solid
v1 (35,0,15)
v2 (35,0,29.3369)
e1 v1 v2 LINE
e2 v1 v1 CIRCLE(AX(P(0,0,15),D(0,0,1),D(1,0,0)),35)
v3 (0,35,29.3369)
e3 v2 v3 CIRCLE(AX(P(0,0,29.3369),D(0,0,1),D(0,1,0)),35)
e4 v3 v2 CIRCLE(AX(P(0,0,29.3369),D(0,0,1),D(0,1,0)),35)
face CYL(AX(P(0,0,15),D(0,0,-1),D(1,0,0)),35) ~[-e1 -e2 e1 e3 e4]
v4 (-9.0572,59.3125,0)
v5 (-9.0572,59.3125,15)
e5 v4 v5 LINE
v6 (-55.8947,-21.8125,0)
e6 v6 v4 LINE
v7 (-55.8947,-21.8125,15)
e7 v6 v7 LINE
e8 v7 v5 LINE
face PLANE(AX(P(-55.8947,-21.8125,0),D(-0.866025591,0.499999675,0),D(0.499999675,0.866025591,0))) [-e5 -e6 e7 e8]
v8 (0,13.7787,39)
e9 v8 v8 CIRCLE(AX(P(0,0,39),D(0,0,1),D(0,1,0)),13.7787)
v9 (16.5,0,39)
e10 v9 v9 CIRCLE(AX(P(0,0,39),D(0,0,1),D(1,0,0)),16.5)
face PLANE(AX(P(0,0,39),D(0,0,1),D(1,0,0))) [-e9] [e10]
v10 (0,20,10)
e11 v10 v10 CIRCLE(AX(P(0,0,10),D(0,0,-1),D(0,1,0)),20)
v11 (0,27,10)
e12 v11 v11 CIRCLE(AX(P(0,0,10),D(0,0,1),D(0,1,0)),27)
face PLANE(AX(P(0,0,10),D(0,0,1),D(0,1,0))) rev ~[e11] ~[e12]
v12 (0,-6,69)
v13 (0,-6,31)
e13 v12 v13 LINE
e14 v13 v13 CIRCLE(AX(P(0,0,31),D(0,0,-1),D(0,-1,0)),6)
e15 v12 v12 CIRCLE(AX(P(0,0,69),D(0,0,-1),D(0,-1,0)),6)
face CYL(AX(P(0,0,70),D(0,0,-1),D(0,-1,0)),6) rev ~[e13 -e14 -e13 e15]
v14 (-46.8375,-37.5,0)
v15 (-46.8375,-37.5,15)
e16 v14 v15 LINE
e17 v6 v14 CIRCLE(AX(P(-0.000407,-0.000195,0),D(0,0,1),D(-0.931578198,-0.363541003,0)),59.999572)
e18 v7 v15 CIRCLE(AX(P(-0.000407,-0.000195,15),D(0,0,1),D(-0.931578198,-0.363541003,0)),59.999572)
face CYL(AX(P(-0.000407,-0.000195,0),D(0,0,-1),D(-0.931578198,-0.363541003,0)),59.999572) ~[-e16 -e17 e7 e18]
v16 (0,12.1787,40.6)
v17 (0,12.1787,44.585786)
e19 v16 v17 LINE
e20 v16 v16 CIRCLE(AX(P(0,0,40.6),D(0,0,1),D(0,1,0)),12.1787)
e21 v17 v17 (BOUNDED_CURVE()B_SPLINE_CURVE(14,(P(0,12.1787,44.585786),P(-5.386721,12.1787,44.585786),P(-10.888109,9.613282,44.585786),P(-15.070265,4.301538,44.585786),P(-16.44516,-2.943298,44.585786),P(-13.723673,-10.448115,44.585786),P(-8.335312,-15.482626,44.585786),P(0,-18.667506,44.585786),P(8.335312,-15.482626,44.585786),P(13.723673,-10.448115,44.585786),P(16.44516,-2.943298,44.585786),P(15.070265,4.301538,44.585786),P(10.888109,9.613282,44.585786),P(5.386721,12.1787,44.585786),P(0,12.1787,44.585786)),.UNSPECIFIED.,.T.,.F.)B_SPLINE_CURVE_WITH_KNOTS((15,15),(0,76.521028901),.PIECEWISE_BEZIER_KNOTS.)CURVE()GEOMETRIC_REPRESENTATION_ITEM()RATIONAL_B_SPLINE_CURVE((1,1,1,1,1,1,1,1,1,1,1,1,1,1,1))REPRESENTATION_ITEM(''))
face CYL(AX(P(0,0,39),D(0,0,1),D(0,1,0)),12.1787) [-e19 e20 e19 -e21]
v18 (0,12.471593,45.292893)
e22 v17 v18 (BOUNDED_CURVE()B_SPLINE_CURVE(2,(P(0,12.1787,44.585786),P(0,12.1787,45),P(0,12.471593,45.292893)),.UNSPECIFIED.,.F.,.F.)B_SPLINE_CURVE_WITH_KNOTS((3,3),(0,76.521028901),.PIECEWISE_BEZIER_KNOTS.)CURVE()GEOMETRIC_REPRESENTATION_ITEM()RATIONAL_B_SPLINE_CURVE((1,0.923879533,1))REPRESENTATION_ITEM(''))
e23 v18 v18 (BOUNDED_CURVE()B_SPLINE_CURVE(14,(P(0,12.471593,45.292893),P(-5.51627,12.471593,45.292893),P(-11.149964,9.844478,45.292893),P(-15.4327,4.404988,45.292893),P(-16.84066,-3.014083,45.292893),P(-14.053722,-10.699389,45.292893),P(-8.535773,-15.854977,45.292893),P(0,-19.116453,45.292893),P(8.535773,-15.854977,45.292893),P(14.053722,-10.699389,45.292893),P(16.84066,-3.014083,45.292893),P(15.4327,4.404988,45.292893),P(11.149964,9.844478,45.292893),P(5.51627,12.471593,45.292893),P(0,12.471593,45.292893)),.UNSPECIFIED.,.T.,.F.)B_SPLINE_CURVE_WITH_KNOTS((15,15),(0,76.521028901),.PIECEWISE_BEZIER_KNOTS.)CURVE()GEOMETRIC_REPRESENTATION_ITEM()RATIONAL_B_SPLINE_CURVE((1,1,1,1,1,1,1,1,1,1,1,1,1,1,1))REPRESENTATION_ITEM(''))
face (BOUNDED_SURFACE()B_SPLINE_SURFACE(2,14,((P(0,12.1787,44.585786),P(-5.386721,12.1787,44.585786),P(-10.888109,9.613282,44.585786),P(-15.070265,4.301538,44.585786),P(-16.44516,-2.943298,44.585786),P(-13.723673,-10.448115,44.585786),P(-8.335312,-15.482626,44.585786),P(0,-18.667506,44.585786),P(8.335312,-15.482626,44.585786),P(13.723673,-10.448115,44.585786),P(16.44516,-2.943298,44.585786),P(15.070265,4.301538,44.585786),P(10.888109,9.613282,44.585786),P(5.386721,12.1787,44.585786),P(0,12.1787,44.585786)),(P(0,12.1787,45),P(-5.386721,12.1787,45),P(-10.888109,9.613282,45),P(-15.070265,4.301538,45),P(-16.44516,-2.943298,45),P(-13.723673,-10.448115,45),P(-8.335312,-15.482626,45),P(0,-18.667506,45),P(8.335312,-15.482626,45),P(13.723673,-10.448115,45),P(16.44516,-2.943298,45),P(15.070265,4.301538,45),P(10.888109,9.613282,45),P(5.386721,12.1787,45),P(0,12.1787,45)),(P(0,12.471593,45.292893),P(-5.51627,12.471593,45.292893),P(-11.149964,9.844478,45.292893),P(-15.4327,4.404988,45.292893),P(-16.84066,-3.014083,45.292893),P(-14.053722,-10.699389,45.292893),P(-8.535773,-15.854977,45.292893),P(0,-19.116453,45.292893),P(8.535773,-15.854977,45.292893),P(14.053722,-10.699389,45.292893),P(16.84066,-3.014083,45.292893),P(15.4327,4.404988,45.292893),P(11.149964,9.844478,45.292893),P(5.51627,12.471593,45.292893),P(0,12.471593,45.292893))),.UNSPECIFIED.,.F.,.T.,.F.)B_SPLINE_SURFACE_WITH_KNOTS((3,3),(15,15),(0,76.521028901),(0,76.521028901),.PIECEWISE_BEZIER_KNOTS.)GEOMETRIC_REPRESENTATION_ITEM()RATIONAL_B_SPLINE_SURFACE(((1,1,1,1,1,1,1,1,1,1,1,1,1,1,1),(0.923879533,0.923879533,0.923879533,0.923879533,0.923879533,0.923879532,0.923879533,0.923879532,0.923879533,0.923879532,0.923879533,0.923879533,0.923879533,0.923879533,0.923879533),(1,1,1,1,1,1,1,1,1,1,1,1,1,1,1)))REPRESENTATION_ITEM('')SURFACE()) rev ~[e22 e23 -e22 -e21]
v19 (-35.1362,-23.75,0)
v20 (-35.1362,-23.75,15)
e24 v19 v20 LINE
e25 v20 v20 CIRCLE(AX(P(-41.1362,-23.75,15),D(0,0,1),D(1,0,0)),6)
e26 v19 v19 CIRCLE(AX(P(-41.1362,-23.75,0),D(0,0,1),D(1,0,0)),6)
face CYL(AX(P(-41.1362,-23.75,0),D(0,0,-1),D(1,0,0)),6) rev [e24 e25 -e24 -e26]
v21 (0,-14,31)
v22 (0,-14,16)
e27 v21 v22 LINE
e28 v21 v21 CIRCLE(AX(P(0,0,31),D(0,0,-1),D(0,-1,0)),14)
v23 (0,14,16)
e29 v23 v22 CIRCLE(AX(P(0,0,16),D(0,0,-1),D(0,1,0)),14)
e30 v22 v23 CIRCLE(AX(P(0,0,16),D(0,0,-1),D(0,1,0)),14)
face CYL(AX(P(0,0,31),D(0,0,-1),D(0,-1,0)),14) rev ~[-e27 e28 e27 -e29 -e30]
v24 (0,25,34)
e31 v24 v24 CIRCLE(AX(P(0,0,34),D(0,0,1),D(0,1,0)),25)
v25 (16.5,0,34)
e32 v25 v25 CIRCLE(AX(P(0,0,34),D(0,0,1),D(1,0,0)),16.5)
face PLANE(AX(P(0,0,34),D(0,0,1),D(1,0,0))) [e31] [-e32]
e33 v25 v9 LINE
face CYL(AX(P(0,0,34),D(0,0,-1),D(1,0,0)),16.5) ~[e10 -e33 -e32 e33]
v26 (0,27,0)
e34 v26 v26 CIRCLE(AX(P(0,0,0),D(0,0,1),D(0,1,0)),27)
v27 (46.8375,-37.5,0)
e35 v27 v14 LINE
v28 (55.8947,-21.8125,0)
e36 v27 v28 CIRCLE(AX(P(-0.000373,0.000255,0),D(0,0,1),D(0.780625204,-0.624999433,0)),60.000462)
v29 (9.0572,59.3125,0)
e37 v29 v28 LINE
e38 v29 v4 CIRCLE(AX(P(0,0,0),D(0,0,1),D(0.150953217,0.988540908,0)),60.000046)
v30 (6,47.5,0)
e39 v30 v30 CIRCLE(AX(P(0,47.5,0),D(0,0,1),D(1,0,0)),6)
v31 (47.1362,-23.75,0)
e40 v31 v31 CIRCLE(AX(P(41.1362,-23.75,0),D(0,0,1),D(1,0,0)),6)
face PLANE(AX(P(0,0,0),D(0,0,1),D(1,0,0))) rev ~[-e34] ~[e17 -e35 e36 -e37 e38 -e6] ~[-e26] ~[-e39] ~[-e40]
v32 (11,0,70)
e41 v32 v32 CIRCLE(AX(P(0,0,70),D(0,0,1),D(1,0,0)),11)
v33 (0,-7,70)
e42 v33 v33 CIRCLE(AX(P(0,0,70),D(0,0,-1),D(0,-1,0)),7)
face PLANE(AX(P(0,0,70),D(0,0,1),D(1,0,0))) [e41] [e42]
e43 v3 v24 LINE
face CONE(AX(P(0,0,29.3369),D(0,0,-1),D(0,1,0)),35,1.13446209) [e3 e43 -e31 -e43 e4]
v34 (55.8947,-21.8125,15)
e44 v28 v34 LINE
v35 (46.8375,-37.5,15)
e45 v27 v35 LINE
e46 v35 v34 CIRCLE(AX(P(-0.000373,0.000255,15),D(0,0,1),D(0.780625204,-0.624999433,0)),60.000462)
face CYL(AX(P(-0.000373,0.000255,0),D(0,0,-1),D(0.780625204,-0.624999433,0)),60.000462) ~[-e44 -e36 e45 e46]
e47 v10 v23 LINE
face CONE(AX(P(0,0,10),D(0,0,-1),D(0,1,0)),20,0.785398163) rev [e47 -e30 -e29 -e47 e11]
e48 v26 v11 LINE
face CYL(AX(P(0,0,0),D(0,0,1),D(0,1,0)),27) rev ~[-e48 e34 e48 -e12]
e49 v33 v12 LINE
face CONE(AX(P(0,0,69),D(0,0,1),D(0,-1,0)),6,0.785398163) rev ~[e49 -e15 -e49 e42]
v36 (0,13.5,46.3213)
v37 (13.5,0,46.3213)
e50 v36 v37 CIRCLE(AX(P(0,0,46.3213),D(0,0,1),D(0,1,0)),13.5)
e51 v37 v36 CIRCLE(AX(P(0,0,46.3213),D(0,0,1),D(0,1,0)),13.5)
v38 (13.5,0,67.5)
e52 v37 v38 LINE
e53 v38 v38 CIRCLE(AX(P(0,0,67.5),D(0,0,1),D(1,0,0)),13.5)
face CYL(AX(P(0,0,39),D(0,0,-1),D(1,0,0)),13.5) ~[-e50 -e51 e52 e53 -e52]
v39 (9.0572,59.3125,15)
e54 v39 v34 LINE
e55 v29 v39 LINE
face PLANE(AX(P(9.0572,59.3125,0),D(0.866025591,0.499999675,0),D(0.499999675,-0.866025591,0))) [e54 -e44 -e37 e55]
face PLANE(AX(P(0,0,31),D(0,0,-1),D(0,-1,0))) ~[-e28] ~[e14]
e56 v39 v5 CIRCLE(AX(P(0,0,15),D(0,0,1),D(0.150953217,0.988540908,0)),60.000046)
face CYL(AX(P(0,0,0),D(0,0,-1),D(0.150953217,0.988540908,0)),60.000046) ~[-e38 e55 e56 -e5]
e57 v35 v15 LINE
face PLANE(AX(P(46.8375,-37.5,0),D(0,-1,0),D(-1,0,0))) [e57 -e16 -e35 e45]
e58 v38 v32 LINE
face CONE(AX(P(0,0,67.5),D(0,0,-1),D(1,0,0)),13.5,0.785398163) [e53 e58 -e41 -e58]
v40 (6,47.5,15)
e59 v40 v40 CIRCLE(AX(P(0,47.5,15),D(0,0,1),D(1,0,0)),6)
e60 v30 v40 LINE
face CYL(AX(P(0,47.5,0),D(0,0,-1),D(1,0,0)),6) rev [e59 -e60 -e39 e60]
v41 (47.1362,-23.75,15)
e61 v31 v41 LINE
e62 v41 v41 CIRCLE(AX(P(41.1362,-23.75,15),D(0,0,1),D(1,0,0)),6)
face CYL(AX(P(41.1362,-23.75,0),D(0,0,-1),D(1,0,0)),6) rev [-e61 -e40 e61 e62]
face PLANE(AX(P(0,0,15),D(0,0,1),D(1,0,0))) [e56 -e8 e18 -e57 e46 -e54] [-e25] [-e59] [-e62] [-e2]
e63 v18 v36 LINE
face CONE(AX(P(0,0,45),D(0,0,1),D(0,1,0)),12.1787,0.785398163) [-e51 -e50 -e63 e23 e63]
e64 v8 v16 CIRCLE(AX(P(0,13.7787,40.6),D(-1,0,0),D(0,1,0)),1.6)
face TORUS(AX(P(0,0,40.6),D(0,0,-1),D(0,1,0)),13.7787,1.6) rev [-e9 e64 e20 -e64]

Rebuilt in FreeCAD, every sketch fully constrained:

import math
import FreeCAD as App
import Part
import Sketcher
Q = App.Units.Quantity


def edges_at(feature, points):
    """Names of the edges that pass closest to the given points."""
    edges = feature.Shape.Edges
    near = lambda p: min(range(len(edges)), key=lambda i: edges[i].distToShape(Part.Vertex(*p))[0])
    return sorted({f"Edge{near(p) + 1}" for p in points})

doc = App.newDocument("Part")
body = doc.addObject("PartDesign::Body", "Body")

sketch1 = doc.addObject("Sketcher::SketchObject", "Sketch")
body.addObject(sketch1)
sketch1.AttachmentSupport = (doc.XY_Plane, [""])
sketch1.MapMode = "FlatFace"
sketch1.addGeometry(Part.LineSegment(App.Vector(55.8947, -21.8125, 0), App.Vector(9.0572, 59.3125, 0)), False)
sketch1.addGeometry(Part.ArcOfCircle(Part.Circle(App.Vector(0, 0, 0), App.Vector(0, 0, 1), 60.000046), math.radians(81.317829), math.radians(98.682171)), False)
sketch1.addGeometry(Part.LineSegment(App.Vector(-9.0572, 59.3125, 0), App.Vector(-55.8947, -21.8125, 0)), False)
sketch1.addGeometry(Part.ArcOfCircle(Part.Circle(App.Vector(0, 0, 0), App.Vector(0, 0, 1), 60.000012), math.radians(-158.682146), math.radians(-141.317822)), False)
sketch1.addGeometry(Part.LineSegment(App.Vector(-46.8375, -37.5, 0), App.Vector(46.8375, -37.5, 0)), False)
sketch1.addGeometry(Part.ArcOfCircle(Part.Circle(App.Vector(0, 0, 0), App.Vector(0, 0, 1), 60.000046), math.radians(-38.682178), math.radians(-21.317854)), False)
sketch1.addGeometry(Part.Circle(App.Vector(-41.1362, -23.75, 0), App.Vector(0, 0, 1), 6), False)
sketch1.addGeometry(Part.Circle(App.Vector(41.1362, -23.75, 0), App.Vector(0, 0, 1), 6), False)
sketch1.addGeometry(Part.Circle(App.Vector(0, 47.5, 0), App.Vector(0, 0, 1), 6), False)
sketch1.addConstraint(Sketcher.Constraint("Coincident", 0, 2, 1, 1))
sketch1.addConstraint(Sketcher.Constraint("Coincident", 1, 2, 2, 1))
sketch1.addConstraint(Sketcher.Constraint("Coincident", 2, 2, 3, 1))
sketch1.addConstraint(Sketcher.Constraint("Coincident", 3, 2, 4, 1))
sketch1.addConstraint(Sketcher.Constraint("Coincident", 4, 2, 5, 1))
sketch1.addConstraint(Sketcher.Constraint("Coincident", 5, 2, 0, 1))
sketch1.addConstraint(Sketcher.Constraint("Horizontal", 4))
sketch1.addConstraint(Sketcher.Constraint("Coincident", 1, 3, -1, 1))
sketch1.addConstraint(Sketcher.Constraint("Coincident", 3, 3, -1, 1))
sketch1.addConstraint(Sketcher.Constraint("Coincident", 5, 3, -1, 1))
sketch1.addConstraint(Sketcher.Constraint("Equal", 1, 3))
sketch1.addConstraint(Sketcher.Constraint("Equal", 3, 5))
sketch1.addConstraint(Sketcher.Constraint("Equal", 6, 7))
sketch1.addConstraint(Sketcher.Constraint("Equal", 7, 8))
sketch1.addConstraint(Sketcher.Constraint("Symmetric", 6, 3, 7, 3, -2))
sketch1.addConstraint(Sketcher.Constraint("PointOnObject", 8, 3, -2))
sketch1.addConstraint(Sketcher.Constraint("Horizontal", 0, 2, 1, 2))
sketch1.addConstraint(Sketcher.Constraint("Horizontal", 2, 2, 5, 2))
sketch1.addConstraint(Sketcher.Constraint("Diameter", 6, 12.0))
sketch1.addConstraint(Sketcher.Constraint("Radius", 1, 60.0))
sketch1.addConstraint(Sketcher.Constraint("Angle", 0, Q("120 deg")))
sketch1.addConstraint(Sketcher.Constraint("DistanceY", -1, 1, 8, 3, 47.5))
sketch1.addConstraint(Sketcher.Constraint("DistanceY", 3, 2, -1, 1, 37.5))
sketch1.addConstraint(Sketcher.Constraint("DistanceY", 6, 3, -1, 1, 23.75))
sketch1.addConstraint(Sketcher.Constraint("Distance", 0, 93.675))
sketch1.addConstraint(Sketcher.Constraint("DistanceX", 0, 2, 7, 3, 32.079))
pad1 = doc.addObject("PartDesign::Pad", "Pad")
body.addObject(pad1)
pad1.Profile = sketch1
pad1.Length = 15

sketch2 = doc.addObject("Sketcher::SketchObject", "Sketch001")
body.addObject(sketch2)
sketch2.AttachmentSupport = (doc.XY_Plane, [""])
sketch2.MapMode = "FlatFace"
sketch2.AttachmentOffset = App.Placement(App.Vector(0, 0, 15), App.Rotation())
sketch2.addGeometry(Part.Circle(App.Vector(0, 0, 0), App.Vector(0, 0, 1), 35), False)
sketch2.addConstraint(Sketcher.Constraint("Coincident", 0, 3, -1, 1))
sketch2.addConstraint(Sketcher.Constraint("Diameter", 0, 70.0))
pad2 = doc.addObject("PartDesign::Pad", "Pad001")
body.addObject(pad2)
pad2.Profile = sketch2
pad2.Length = 19

sketch3 = doc.addObject("Sketcher::SketchObject", "Sketch002")
body.addObject(sketch3)
sketch3.AttachmentSupport = (doc.YZ_Plane, [""])
sketch3.MapMode = "FlatFace"
sketch3.addGeometry(Part.LineSegment(App.Vector(35, 29.3369, 0), App.Vector(35, 34, 0)), False)
sketch3.addGeometry(Part.LineSegment(App.Vector(35, 34, 0), App.Vector(25, 34, 0)), False)
sketch3.addGeometry(Part.LineSegment(App.Vector(25, 34, 0), App.Vector(35, 29.3369, 0)), False)
sketch3.addConstraint(Sketcher.Constraint("Coincident", 0, 2, 1, 1))
sketch3.addConstraint(Sketcher.Constraint("Coincident", 1, 2, 2, 1))
sketch3.addConstraint(Sketcher.Constraint("Coincident", 2, 2, 0, 1))
sketch3.addConstraint(Sketcher.Constraint("Vertical", 0))
sketch3.addConstraint(Sketcher.Constraint("Horizontal", 1))
sketch3.addConstraint(Sketcher.Constraint("Angle", 2, Q("-25 deg")))
sketch3.addConstraint(Sketcher.Constraint("DistanceX", -1, 1, 1, 2, 25.0))
sketch3.addConstraint(Sketcher.Constraint("DistanceX", 1, 2, 1, 1, 10.0))
sketch3.addConstraint(Sketcher.Constraint("DistanceY", -1, 1, 0, 2, 34.0))
groove = doc.addObject("PartDesign::Groove", "Groove")
body.addObject(groove)
groove.Profile = sketch3
groove.ReferenceAxis = (sketch3, ["V_Axis"])
groove.Angle = 360

sketch4 = doc.addObject("Sketcher::SketchObject", "Sketch003")
body.addObject(sketch4)
sketch4.AttachmentSupport = (doc.XY_Plane, [""])
sketch4.MapMode = "FlatFace"
sketch4.AttachmentOffset = App.Placement(App.Vector(0, 0, 34), App.Rotation())
sketch4.addGeometry(Part.Circle(App.Vector(0, 0, 0), App.Vector(0, 0, 1), 16.5), False)
sketch4.addConstraint(Sketcher.Constraint("Coincident", 0, 3, -1, 1))
sketch4.addConstraint(Sketcher.Constraint("Diameter", 0, 33.0))
pad3 = doc.addObject("PartDesign::Pad", "Pad002")
body.addObject(pad3)
pad3.Profile = sketch4
pad3.Length = 5

sketch5 = doc.addObject("Sketcher::SketchObject", "Sketch004")
body.addObject(sketch5)
sketch5.AttachmentSupport = (doc.XY_Plane, [""])
sketch5.MapMode = "FlatFace"
sketch5.AttachmentOffset = App.Placement(App.Vector(0, 0, 39), App.Rotation())
sketch5.addGeometry(Part.Circle(App.Vector(0, 0, 0), App.Vector(0, 0, 1), 13.5), False)
sketch5.addConstraint(Sketcher.Constraint("Coincident", 0, 3, -1, 1))
sketch5.addConstraint(Sketcher.Constraint("Diameter", 0, 27.0))
pad4 = doc.addObject("PartDesign::Pad", "Pad003")
body.addObject(pad4)
pad4.Profile = sketch5
pad4.Length = 31

sketch6 = doc.addObject("Sketcher::SketchObject", "Sketch005")
body.addObject(sketch6)
sketch6.AttachmentSupport = (doc.YZ_Plane, [""])
sketch6.MapMode = "FlatFace"
sketch6.addGeometry(Part.LineSegment(App.Vector(12.1787, 45, 0), App.Vector(12.1787, 39, 0)), False)
sketch6.addGeometry(Part.LineSegment(App.Vector(12.1787, 39, 0), App.Vector(13.5, 39, 0)), False)
sketch6.addGeometry(Part.LineSegment(App.Vector(13.5, 39, 0), App.Vector(13.5, 46.3213, 0)), False)
sketch6.addGeometry(Part.LineSegment(App.Vector(13.5, 46.3213, 0), App.Vector(12.1787, 45, 0)), False)
sketch6.addConstraint(Sketcher.Constraint("Coincident", 0, 2, 1, 1))
sketch6.addConstraint(Sketcher.Constraint("Coincident", 1, 2, 2, 1))
sketch6.addConstraint(Sketcher.Constraint("Coincident", 2, 2, 3, 1))
sketch6.addConstraint(Sketcher.Constraint("Coincident", 3, 2, 0, 1))
sketch6.addConstraint(Sketcher.Constraint("Vertical", 0))
sketch6.addConstraint(Sketcher.Constraint("Horizontal", 1))
sketch6.addConstraint(Sketcher.Constraint("Vertical", 2))
sketch6.addConstraint(Sketcher.Constraint("DistanceY", 0, 2, 0, 1, 6.0))
sketch6.addConstraint(Sketcher.Constraint("DistanceY", -1, 1, 3, 2, 45.0))
sketch6.addConstraint(Sketcher.Constraint("Angle", 3, Q("-135 deg")))
sketch6.addConstraint(Sketcher.Constraint("DistanceX", -1, 1, 1, 2, 13.5))
sketch6.addConstraint(Sketcher.Constraint("DistanceX", 1, 1, 1, 2, 1.3213))
groove2 = doc.addObject("PartDesign::Groove", "Groove001")
body.addObject(groove2)
groove2.Profile = sketch6
groove2.ReferenceAxis = (sketch6, ["V_Axis"])
groove2.Angle = 360
doc.recompute()

fillet = doc.addObject("PartDesign::Fillet", "Fillet")
body.addObject(fillet)
fillet.Base = (groove2, edges_at(groove2, [(0, -12.179, 39)]))
fillet.Radius = 1.6
doc.recompute()

fillet2 = doc.addObject("PartDesign::Fillet", "Fillet001")
body.addObject(fillet2)
fillet2.Base = (fillet, edges_at(fillet, [(0, -12.179, 45)]))
fillet2.Radius = 1
doc.recompute()

chamfer = doc.addObject("PartDesign::Chamfer", "Chamfer")
body.addObject(chamfer)
chamfer.Base = (fillet2, edges_at(fillet2, [(-13.5, 0, 70)]))
chamfer.Size = 2.5

sketch7 = doc.addObject("Sketcher::SketchObject", "Sketch006")
body.addObject(sketch7)
sketch7.AttachmentSupport = (doc.XY_Plane, [""])
sketch7.MapMode = "FlatFace"
sketch7.addGeometry(Part.Circle(App.Vector(0, 0, 0), App.Vector(0, 0, 1), 27), False)
sketch7.addConstraint(Sketcher.Constraint("Coincident", 0, 3, -1, 1))
sketch7.addConstraint(Sketcher.Constraint("Diameter", 0, 54.0))
doc.recompute()
hole = doc.addObject("PartDesign::Hole", "Hole")
body.addObject(hole)
hole.Profile = sketch7
hole.ThreadType = "None"
hole.Diameter = 54
hole.DepthType = "Dimension"
hole.Depth = 10
hole.DrillPoint = "Flat"
hole.Reversed = True

sketch8 = doc.addObject("Sketcher::SketchObject", "Sketch007")
body.addObject(sketch8)
sketch8.AttachmentSupport = (doc.XY_Plane, [""])
sketch8.MapMode = "FlatFace"
sketch8.AttachmentOffset = App.Placement(App.Vector(0, 0, 70), App.Rotation())
sketch8.addGeometry(Part.Circle(App.Vector(0, 0, 0), App.Vector(0, 0, 1), 6), False)
sketch8.addConstraint(Sketcher.Constraint("Coincident", 0, 3, -1, 1))
sketch8.addConstraint(Sketcher.Constraint("Diameter", 0, 12.0))
doc.recompute()
hole2 = doc.addObject("PartDesign::Hole", "Hole001")
body.addObject(hole2)
hole2.Profile = sketch8
hole2.ThreadType = "None"
hole2.Diameter = 12
hole2.DepthType = "Dimension"
hole2.Depth = 39
hole2.DrillPoint = "Flat"
doc.recompute()

chamfer2 = doc.addObject("PartDesign::Chamfer", "Chamfer001")
body.addObject(chamfer2)
chamfer2.Base = (hole2, edges_at(hole2, [(0, 6, 70)]))
chamfer2.Size = 1

sketch9 = doc.addObject("Sketcher::SketchObject", "Sketch008")
body.addObject(sketch9)
sketch9.AttachmentSupport = (doc.XY_Plane, [""])
sketch9.MapMode = "FlatFace"
sketch9.AttachmentOffset = App.Placement(App.Vector(0, 0, 31), App.Rotation())
sketch9.addGeometry(Part.Circle(App.Vector(0, 0, 0), App.Vector(0, 0, 1), 14), False)
sketch9.addConstraint(Sketcher.Constraint("Coincident", 0, 3, -1, 1))
sketch9.addConstraint(Sketcher.Constraint("Diameter", 0, 28.0))
doc.recompute()
hole3 = doc.addObject("PartDesign::Hole", "Hole002")
body.addObject(hole3)
hole3.Profile = sketch9
hole3.ThreadType = "None"
hole3.Diameter = 28
hole3.DepthType = "ThroughAll"

sketch10 = doc.addObject("Sketcher::SketchObject", "Sketch009")
body.addObject(sketch10)
sketch10.AttachmentSupport = (doc.YZ_Plane, [""])
sketch10.MapMode = "FlatFace"
sketch10.addGeometry(Part.LineSegment(App.Vector(14, 16, 0), App.Vector(14, 10, 0)), False)
sketch10.addGeometry(Part.LineSegment(App.Vector(14, 10, 0), App.Vector(20, 10, 0)), False)
sketch10.addGeometry(Part.LineSegment(App.Vector(20, 10, 0), App.Vector(14, 16, 0)), False)
sketch10.addConstraint(Sketcher.Constraint("Coincident", 0, 2, 1, 1))
sketch10.addConstraint(Sketcher.Constraint("Coincident", 1, 2, 2, 1))
sketch10.addConstraint(Sketcher.Constraint("Coincident", 2, 2, 0, 1))
sketch10.addConstraint(Sketcher.Constraint("Vertical", 0))
sketch10.addConstraint(Sketcher.Constraint("Horizontal", 1))
sketch10.addConstraint(Sketcher.Constraint("Equal", 1, 0))
sketch10.addConstraint(Sketcher.Constraint("DistanceX", 1, 1, 1, 2, 6.0))
sketch10.addConstraint(Sketcher.Constraint("DistanceX", -1, 1, 0, 2, 14.0))
sketch10.addConstraint(Sketcher.Constraint("DistanceY", -1, 1, 0, 2, 10.0))
groove3 = doc.addObject("PartDesign::Groove", "Groove002")
body.addObject(groove3)
groove3.Profile = sketch10
groove3.ReferenceAxis = (sketch10, ["V_Axis"])
groove3.Angle = 360

doc.recompute()
